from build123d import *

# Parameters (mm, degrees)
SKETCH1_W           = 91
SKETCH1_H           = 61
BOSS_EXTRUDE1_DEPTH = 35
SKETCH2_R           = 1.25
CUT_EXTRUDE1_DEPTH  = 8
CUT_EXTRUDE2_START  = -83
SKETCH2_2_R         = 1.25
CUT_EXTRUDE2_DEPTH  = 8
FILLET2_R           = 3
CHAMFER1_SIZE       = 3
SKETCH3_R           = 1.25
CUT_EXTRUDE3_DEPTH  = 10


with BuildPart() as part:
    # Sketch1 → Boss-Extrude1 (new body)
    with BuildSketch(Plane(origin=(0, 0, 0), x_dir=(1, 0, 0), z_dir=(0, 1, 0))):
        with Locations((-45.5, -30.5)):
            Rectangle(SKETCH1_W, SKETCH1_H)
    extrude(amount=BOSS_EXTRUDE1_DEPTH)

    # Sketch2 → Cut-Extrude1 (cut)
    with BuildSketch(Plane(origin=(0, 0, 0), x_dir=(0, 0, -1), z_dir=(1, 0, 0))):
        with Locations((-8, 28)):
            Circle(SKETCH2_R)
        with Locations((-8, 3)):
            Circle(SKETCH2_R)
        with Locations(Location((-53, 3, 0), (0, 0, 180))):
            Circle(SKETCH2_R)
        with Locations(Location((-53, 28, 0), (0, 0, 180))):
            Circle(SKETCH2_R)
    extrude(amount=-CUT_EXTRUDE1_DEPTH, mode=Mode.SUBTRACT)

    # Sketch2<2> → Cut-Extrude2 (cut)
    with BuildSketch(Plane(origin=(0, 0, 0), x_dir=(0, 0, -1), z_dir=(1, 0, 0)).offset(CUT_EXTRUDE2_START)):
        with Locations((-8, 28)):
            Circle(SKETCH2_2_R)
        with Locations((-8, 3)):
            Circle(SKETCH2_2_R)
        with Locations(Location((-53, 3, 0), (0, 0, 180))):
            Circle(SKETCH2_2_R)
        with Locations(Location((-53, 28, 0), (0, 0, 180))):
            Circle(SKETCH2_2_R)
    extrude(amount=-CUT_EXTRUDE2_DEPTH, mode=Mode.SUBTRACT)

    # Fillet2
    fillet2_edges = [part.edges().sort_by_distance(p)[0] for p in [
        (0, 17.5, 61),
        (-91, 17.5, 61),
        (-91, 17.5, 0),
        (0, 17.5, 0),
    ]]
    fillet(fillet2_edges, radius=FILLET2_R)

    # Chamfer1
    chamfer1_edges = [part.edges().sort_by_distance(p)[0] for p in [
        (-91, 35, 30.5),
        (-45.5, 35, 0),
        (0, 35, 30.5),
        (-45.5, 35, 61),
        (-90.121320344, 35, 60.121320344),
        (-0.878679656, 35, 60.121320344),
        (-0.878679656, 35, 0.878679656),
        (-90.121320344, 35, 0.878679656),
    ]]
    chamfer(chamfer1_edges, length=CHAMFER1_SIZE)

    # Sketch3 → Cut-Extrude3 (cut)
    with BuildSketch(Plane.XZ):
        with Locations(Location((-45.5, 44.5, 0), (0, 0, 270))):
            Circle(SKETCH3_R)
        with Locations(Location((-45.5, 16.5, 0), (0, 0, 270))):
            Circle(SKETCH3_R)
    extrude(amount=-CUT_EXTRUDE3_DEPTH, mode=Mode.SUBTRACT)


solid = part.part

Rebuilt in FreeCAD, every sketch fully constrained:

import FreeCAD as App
import Part
import Sketcher

V = App.Vector


def edges_at(feature, points):
    """Names of the edges that pass closest to the given points."""
    edges = feature.Shape.Edges
    near = lambda p: min(range(len(edges)), key=lambda i: edges[i].distToShape(Part.Vertex(*p))[0])
    return sorted({f"Edge{near(p) + 1}" for p in points})

doc = App.newDocument("Part")
body = doc.addObject("PartDesign::Body", "Body")

# Sketch on XZ plane
sketch1 = body.newObject("Sketcher::SketchObject", "Sketch")
sketch1.AttachmentSupport = (doc.getObject("XZ_Plane"), [""])
sketch1.MapMode = "FlatFace"
sketch1.addGeometry([
    Part.LineSegment(V(-91, 0, 0), V(-91, 61, 0)),
    Part.LineSegment(V(-91, 61, 0), V(0, 61, 0)),
    Part.LineSegment(V(0, 61, 0), V(0, 0, 0)),
    Part.LineSegment(V(0, 0, 0), V(-91, 0, 0)),
], False)
sketch1.addConstraint([
    Sketcher.Constraint("Coincident", 0, 2, 1, 1),
    Sketcher.Constraint("Coincident", 1, 2, 2, 1),
    Sketcher.Constraint("Coincident", 2, 2, 3, 1),
    Sketcher.Constraint("Coincident", 3, 2, 0, 1),
    Sketcher.Constraint("Vertical", 0),
    Sketcher.Constraint("Horizontal", 1),
    Sketcher.Constraint("Vertical", 2),
    Sketcher.Constraint("Horizontal", 3),
    Sketcher.Constraint("Coincident", 2, 2, -1, 1),
    Sketcher.Constraint("DistanceX", 1, 1, 1, 2, 91.0),
    Sketcher.Constraint("DistanceY", 0, 1, 0, 2, 61.0),
])
pad1 = body.newObject("PartDesign::Pad", "Pad")
pad1.Profile = sketch1
pad1.Length = 35
pad1.Reversed = True

# Sketch on YZ plane
sketch2 = body.newObject("Sketcher::SketchObject", "Sketch001")
sketch2.AttachmentSupport = (doc.getObject("YZ_Plane"), [""])
sketch2.MapMode = "FlatFace"
sketch2.addGeometry([
    Part.Circle(V(28, 8, 0), V(0, 0, 1), 1.2),
    Part.Circle(V(3, 8, 0), V(0, 0, 1), 1.2),
    Part.Circle(V(3, 53, 0), V(0, 0, 1), 1.2),
    Part.Circle(V(28, 53, 0), V(0, 0, 1), 1.2),
], False)
sketch2.addConstraint([
    Sketcher.Constraint("Equal", 0, 1),
    Sketcher.Constraint("Equal", 1, 2),
    Sketcher.Constraint("Equal", 2, 3),
    Sketcher.Constraint("Horizontal", 0, 3, 1, 3),
    Sketcher.Constraint("Horizontal", 2, 3, 3, 3),
    Sketcher.Constraint("Vertical", 1, 3, 2, 3),
    Sketcher.Constraint("Vertical", 0, 3, 3, 3),
    Sketcher.Constraint("Diameter", 0, 2.5),
    Sketcher.Constraint("DistanceX", -1, 1, 0, 3, 28.0),
    Sketcher.Constraint("DistanceY", -1, 1, 0, 3, 8.0),
    Sketcher.Constraint("DistanceX", -1, 1, 1, 3, 3.0),
    Sketcher.Constraint("DistanceY", -1, 1, 2, 3, 53.0),
])
pocket1 = body.newObject("PartDesign::Pocket", "Pocket")
pocket1.Profile = sketch2
pocket1.Length = 8

# Sketch on YZ plane
sketch3 = body.newObject("Sketcher::SketchObject", "Sketch002")
sketch3.AttachmentSupport = (doc.getObject("YZ_Plane"), [""])
sketch3.MapMode = "FlatFace"
sketch3.AttachmentOffset = App.Placement(V(0, 0, -83), App.Rotation())
sketch3.addGeometry([
    Part.Circle(V(28, 8, 0), V(0, 0, 1), 1.2),
    Part.Circle(V(3, 8, 0), V(0, 0, 1), 1.2),
    Part.Circle(V(3, 53, 0), V(0, 0, 1), 1.2),
    Part.Circle(V(28, 53, 0), V(0, 0, 1), 1.2),
], False)
sketch3.addConstraint([
    Sketcher.Constraint("Equal", 0, 1),
    Sketcher.Constraint("Equal", 1, 2),
    Sketcher.Constraint("Equal", 2, 3),
    Sketcher.Constraint("Horizontal", 0, 3, 1, 3),
    Sketcher.Constraint("Horizontal", 2, 3, 3, 3),
    Sketcher.Constraint("Vertical", 1, 3, 2, 3),
    Sketcher.Constraint("Vertical", 0, 3, 3, 3),
    Sketcher.Constraint("Diameter", 0, 2.5),
    Sketcher.Constraint("DistanceX", -1, 1, 0, 3, 28.0),
    Sketcher.Constraint("DistanceY", -1, 1, 0, 3, 8.0),
    Sketcher.Constraint("DistanceX", -1, 1, 1, 3, 3.0),
    Sketcher.Constraint("DistanceY", -1, 1, 2, 3, 53.0),
])
pocket2 = body.newObject("PartDesign::Pocket", "Pocket001")
pocket2.Profile = sketch3
pocket2.Length = 8
doc.recompute()

fillet = body.newObject("PartDesign::Fillet", "Fillet")
fillet.Base = (pocket2, edges_at(pocket2, [
    (0, 17.5, 61),
    (-91, 17.5, 61),
    (-91, 17.5, 0),
    (0, 17.5, 0),
]))
fillet.Radius = 3
doc.recompute()

chamfer = body.newObject("PartDesign::Chamfer", "Chamfer")
chamfer.Base = (fillet, edges_at(fillet, [
    (-91, 35, 30.5),
    (-45.5, 35, 0),
    (0, 35, 30.5),
    (-45.5, 35, 61),
    (-90.121, 35, 60.121),
    (-0.879, 35, 60.121),
    (-0.879, 35, 0.879),
    (-90.121, 35, 0.879),
]))
chamfer.Size = 3

# Sketch on XZ plane
sketch4 = body.newObject("Sketcher::SketchObject", "Sketch003")
sketch4.AttachmentSupport = (doc.getObject("XZ_Plane"), [""])
sketch4.MapMode = "FlatFace"
sketch4.addGeometry([
    Part.Circle(V(-45.5, 44.5, 0), V(0, 0, 1), 1.2),
    Part.Circle(V(-45.5, 16.5, 0), V(0, 0, 1), 1.2),
], False)
sketch4.addConstraint([
    Sketcher.Constraint("Equal", 0, 1),
    Sketcher.Constraint("Vertical", 0, 3, 1, 3),
    Sketcher.Constraint("Diameter", 0, 2.5),
    Sketcher.Constraint("DistanceY", 1, 3, 0, 3, 28.0),
    Sketcher.Constraint("DistanceX", 0, 3, -1, 1, 45.5),
    Sketcher.Constraint("DistanceY", -1, 1, 0, 3, 44.5),
])
pocket3 = body.newObject("PartDesign::Pocket", "Pocket002")
pocket3.Profile = sketch4
pocket3.Length = 10

doc.recompute()
